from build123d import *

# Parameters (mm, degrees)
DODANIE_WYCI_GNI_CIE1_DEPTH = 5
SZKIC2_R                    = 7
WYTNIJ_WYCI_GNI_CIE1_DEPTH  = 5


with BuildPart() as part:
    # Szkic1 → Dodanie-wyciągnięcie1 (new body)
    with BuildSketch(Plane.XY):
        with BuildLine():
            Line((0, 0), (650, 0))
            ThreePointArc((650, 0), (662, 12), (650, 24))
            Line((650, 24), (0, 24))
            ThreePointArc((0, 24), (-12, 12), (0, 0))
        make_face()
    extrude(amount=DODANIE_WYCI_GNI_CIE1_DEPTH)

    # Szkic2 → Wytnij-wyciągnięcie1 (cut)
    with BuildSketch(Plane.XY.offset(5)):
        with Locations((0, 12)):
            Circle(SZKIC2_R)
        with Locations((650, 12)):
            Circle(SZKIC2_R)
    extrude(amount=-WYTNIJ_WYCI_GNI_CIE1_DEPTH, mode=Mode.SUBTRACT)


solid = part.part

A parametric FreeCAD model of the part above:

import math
import FreeCAD as App
import Part
import Sketcher
from FreeCAD import Vector
Q = App.Units.Quantity

doc = App.newDocument("Part")
body = doc.addObject("PartDesign::Body", "Body")

# Sketch on XY plane
sketch1 = body.newObject("Sketcher::SketchObject", "Sketch")
sketch1.AttachmentSupport = (doc.getObject("XY_Plane"), [""])
sketch1.MapMode = "FlatFace"
sketch1.addGeometry(Part.LineSegment(Vector(0, 0, 0), Vector(650, 0, 0)), False)
sketch1.addGeometry(Part.ArcOfCircle(Part.Circle(Vector(650, 12, 0), Vector(0, 0, 1), 12), math.radians(-90), math.radians(90)), False)
sketch1.addGeometry(Part.LineSegment(Vector(650, 24, 0), Vector(0, 24, 0)), False)
sketch1.addGeometry(Part.ArcOfCircle(Part.Circle(Vector(0, 12, 0), Vector(0, 0, 1), 12), math.radians(90), math.radians(270)), False)
sketch1.addConstraint(Sketcher.Constraint("Tangent", 0, 2, 1, 1))
sketch1.addConstraint(Sketcher.Constraint("Tangent", 1, 2, 2, 1))
sketch1.addConstraint(Sketcher.Constraint("Tangent", 2, 2, 3, 1))
sketch1.addConstraint(Sketcher.Constraint("Tangent", 3, 2, 0, 1))
sketch1.addConstraint(Sketcher.Constraint("Horizontal", 0))
sketch1.addConstraint(Sketcher.Constraint("Horizontal", 2))
sketch1.addConstraint(Sketcher.Constraint("Coincident", 3, 2, -1, 1))
sketch1.addConstraint(Sketcher.Constraint("Radius", 1, Q("12 mm")))
sketch1.addConstraint(Sketcher.Constraint("DistanceX", 0, 1, 0, 2, Q("650 mm")))
pad1 = body.newObject("PartDesign::Pad", "Pad")
pad1.Profile = sketch1
pad1.Length = 5

# Sketch on XY plane
sketch2 = body.newObject("Sketcher::SketchObject", "Sketch001")
sketch2.AttachmentSupport = (doc.getObject("XY_Plane"), [""])
sketch2.MapMode = "FlatFace"
sketch2.AttachmentOffset = App.Placement(Vector(0, 0, 5), App.Rotation())
sketch2.addGeometry(Part.Circle(Vector(0, 12, 0), Vector(0, 0, 1), 7), False)
sketch2.addGeometry(Part.Circle(Vector(650, 12, 0), Vector(0, 0, 1), 7), False)
sketch2.addConstraint(Sketcher.Constraint("Equal", 0, 1))
sketch2.addConstraint(Sketcher.Constraint("PointOnObject", 0, 3, -2))
sketch2.addConstraint(Sketcher.Constraint("Horizontal", 0, 3, 1, 3))
sketch2.addConstraint(Sketcher.Constraint("Diameter", 0, Q("14 mm")))
sketch2.addConstraint(Sketcher.Constraint("DistanceY", -1, 1, 0, 3, Q("12 mm")))
sketch2.addConstraint(Sketcher.Constraint("DistanceX", -1, 1, 1, 3, Q("650 mm")))
pocket1 = body.newObject("PartDesign::Pocket", "Pocket")
pocket1.Profile = sketch2
pocket1.Length = 5

doc.recompute()
